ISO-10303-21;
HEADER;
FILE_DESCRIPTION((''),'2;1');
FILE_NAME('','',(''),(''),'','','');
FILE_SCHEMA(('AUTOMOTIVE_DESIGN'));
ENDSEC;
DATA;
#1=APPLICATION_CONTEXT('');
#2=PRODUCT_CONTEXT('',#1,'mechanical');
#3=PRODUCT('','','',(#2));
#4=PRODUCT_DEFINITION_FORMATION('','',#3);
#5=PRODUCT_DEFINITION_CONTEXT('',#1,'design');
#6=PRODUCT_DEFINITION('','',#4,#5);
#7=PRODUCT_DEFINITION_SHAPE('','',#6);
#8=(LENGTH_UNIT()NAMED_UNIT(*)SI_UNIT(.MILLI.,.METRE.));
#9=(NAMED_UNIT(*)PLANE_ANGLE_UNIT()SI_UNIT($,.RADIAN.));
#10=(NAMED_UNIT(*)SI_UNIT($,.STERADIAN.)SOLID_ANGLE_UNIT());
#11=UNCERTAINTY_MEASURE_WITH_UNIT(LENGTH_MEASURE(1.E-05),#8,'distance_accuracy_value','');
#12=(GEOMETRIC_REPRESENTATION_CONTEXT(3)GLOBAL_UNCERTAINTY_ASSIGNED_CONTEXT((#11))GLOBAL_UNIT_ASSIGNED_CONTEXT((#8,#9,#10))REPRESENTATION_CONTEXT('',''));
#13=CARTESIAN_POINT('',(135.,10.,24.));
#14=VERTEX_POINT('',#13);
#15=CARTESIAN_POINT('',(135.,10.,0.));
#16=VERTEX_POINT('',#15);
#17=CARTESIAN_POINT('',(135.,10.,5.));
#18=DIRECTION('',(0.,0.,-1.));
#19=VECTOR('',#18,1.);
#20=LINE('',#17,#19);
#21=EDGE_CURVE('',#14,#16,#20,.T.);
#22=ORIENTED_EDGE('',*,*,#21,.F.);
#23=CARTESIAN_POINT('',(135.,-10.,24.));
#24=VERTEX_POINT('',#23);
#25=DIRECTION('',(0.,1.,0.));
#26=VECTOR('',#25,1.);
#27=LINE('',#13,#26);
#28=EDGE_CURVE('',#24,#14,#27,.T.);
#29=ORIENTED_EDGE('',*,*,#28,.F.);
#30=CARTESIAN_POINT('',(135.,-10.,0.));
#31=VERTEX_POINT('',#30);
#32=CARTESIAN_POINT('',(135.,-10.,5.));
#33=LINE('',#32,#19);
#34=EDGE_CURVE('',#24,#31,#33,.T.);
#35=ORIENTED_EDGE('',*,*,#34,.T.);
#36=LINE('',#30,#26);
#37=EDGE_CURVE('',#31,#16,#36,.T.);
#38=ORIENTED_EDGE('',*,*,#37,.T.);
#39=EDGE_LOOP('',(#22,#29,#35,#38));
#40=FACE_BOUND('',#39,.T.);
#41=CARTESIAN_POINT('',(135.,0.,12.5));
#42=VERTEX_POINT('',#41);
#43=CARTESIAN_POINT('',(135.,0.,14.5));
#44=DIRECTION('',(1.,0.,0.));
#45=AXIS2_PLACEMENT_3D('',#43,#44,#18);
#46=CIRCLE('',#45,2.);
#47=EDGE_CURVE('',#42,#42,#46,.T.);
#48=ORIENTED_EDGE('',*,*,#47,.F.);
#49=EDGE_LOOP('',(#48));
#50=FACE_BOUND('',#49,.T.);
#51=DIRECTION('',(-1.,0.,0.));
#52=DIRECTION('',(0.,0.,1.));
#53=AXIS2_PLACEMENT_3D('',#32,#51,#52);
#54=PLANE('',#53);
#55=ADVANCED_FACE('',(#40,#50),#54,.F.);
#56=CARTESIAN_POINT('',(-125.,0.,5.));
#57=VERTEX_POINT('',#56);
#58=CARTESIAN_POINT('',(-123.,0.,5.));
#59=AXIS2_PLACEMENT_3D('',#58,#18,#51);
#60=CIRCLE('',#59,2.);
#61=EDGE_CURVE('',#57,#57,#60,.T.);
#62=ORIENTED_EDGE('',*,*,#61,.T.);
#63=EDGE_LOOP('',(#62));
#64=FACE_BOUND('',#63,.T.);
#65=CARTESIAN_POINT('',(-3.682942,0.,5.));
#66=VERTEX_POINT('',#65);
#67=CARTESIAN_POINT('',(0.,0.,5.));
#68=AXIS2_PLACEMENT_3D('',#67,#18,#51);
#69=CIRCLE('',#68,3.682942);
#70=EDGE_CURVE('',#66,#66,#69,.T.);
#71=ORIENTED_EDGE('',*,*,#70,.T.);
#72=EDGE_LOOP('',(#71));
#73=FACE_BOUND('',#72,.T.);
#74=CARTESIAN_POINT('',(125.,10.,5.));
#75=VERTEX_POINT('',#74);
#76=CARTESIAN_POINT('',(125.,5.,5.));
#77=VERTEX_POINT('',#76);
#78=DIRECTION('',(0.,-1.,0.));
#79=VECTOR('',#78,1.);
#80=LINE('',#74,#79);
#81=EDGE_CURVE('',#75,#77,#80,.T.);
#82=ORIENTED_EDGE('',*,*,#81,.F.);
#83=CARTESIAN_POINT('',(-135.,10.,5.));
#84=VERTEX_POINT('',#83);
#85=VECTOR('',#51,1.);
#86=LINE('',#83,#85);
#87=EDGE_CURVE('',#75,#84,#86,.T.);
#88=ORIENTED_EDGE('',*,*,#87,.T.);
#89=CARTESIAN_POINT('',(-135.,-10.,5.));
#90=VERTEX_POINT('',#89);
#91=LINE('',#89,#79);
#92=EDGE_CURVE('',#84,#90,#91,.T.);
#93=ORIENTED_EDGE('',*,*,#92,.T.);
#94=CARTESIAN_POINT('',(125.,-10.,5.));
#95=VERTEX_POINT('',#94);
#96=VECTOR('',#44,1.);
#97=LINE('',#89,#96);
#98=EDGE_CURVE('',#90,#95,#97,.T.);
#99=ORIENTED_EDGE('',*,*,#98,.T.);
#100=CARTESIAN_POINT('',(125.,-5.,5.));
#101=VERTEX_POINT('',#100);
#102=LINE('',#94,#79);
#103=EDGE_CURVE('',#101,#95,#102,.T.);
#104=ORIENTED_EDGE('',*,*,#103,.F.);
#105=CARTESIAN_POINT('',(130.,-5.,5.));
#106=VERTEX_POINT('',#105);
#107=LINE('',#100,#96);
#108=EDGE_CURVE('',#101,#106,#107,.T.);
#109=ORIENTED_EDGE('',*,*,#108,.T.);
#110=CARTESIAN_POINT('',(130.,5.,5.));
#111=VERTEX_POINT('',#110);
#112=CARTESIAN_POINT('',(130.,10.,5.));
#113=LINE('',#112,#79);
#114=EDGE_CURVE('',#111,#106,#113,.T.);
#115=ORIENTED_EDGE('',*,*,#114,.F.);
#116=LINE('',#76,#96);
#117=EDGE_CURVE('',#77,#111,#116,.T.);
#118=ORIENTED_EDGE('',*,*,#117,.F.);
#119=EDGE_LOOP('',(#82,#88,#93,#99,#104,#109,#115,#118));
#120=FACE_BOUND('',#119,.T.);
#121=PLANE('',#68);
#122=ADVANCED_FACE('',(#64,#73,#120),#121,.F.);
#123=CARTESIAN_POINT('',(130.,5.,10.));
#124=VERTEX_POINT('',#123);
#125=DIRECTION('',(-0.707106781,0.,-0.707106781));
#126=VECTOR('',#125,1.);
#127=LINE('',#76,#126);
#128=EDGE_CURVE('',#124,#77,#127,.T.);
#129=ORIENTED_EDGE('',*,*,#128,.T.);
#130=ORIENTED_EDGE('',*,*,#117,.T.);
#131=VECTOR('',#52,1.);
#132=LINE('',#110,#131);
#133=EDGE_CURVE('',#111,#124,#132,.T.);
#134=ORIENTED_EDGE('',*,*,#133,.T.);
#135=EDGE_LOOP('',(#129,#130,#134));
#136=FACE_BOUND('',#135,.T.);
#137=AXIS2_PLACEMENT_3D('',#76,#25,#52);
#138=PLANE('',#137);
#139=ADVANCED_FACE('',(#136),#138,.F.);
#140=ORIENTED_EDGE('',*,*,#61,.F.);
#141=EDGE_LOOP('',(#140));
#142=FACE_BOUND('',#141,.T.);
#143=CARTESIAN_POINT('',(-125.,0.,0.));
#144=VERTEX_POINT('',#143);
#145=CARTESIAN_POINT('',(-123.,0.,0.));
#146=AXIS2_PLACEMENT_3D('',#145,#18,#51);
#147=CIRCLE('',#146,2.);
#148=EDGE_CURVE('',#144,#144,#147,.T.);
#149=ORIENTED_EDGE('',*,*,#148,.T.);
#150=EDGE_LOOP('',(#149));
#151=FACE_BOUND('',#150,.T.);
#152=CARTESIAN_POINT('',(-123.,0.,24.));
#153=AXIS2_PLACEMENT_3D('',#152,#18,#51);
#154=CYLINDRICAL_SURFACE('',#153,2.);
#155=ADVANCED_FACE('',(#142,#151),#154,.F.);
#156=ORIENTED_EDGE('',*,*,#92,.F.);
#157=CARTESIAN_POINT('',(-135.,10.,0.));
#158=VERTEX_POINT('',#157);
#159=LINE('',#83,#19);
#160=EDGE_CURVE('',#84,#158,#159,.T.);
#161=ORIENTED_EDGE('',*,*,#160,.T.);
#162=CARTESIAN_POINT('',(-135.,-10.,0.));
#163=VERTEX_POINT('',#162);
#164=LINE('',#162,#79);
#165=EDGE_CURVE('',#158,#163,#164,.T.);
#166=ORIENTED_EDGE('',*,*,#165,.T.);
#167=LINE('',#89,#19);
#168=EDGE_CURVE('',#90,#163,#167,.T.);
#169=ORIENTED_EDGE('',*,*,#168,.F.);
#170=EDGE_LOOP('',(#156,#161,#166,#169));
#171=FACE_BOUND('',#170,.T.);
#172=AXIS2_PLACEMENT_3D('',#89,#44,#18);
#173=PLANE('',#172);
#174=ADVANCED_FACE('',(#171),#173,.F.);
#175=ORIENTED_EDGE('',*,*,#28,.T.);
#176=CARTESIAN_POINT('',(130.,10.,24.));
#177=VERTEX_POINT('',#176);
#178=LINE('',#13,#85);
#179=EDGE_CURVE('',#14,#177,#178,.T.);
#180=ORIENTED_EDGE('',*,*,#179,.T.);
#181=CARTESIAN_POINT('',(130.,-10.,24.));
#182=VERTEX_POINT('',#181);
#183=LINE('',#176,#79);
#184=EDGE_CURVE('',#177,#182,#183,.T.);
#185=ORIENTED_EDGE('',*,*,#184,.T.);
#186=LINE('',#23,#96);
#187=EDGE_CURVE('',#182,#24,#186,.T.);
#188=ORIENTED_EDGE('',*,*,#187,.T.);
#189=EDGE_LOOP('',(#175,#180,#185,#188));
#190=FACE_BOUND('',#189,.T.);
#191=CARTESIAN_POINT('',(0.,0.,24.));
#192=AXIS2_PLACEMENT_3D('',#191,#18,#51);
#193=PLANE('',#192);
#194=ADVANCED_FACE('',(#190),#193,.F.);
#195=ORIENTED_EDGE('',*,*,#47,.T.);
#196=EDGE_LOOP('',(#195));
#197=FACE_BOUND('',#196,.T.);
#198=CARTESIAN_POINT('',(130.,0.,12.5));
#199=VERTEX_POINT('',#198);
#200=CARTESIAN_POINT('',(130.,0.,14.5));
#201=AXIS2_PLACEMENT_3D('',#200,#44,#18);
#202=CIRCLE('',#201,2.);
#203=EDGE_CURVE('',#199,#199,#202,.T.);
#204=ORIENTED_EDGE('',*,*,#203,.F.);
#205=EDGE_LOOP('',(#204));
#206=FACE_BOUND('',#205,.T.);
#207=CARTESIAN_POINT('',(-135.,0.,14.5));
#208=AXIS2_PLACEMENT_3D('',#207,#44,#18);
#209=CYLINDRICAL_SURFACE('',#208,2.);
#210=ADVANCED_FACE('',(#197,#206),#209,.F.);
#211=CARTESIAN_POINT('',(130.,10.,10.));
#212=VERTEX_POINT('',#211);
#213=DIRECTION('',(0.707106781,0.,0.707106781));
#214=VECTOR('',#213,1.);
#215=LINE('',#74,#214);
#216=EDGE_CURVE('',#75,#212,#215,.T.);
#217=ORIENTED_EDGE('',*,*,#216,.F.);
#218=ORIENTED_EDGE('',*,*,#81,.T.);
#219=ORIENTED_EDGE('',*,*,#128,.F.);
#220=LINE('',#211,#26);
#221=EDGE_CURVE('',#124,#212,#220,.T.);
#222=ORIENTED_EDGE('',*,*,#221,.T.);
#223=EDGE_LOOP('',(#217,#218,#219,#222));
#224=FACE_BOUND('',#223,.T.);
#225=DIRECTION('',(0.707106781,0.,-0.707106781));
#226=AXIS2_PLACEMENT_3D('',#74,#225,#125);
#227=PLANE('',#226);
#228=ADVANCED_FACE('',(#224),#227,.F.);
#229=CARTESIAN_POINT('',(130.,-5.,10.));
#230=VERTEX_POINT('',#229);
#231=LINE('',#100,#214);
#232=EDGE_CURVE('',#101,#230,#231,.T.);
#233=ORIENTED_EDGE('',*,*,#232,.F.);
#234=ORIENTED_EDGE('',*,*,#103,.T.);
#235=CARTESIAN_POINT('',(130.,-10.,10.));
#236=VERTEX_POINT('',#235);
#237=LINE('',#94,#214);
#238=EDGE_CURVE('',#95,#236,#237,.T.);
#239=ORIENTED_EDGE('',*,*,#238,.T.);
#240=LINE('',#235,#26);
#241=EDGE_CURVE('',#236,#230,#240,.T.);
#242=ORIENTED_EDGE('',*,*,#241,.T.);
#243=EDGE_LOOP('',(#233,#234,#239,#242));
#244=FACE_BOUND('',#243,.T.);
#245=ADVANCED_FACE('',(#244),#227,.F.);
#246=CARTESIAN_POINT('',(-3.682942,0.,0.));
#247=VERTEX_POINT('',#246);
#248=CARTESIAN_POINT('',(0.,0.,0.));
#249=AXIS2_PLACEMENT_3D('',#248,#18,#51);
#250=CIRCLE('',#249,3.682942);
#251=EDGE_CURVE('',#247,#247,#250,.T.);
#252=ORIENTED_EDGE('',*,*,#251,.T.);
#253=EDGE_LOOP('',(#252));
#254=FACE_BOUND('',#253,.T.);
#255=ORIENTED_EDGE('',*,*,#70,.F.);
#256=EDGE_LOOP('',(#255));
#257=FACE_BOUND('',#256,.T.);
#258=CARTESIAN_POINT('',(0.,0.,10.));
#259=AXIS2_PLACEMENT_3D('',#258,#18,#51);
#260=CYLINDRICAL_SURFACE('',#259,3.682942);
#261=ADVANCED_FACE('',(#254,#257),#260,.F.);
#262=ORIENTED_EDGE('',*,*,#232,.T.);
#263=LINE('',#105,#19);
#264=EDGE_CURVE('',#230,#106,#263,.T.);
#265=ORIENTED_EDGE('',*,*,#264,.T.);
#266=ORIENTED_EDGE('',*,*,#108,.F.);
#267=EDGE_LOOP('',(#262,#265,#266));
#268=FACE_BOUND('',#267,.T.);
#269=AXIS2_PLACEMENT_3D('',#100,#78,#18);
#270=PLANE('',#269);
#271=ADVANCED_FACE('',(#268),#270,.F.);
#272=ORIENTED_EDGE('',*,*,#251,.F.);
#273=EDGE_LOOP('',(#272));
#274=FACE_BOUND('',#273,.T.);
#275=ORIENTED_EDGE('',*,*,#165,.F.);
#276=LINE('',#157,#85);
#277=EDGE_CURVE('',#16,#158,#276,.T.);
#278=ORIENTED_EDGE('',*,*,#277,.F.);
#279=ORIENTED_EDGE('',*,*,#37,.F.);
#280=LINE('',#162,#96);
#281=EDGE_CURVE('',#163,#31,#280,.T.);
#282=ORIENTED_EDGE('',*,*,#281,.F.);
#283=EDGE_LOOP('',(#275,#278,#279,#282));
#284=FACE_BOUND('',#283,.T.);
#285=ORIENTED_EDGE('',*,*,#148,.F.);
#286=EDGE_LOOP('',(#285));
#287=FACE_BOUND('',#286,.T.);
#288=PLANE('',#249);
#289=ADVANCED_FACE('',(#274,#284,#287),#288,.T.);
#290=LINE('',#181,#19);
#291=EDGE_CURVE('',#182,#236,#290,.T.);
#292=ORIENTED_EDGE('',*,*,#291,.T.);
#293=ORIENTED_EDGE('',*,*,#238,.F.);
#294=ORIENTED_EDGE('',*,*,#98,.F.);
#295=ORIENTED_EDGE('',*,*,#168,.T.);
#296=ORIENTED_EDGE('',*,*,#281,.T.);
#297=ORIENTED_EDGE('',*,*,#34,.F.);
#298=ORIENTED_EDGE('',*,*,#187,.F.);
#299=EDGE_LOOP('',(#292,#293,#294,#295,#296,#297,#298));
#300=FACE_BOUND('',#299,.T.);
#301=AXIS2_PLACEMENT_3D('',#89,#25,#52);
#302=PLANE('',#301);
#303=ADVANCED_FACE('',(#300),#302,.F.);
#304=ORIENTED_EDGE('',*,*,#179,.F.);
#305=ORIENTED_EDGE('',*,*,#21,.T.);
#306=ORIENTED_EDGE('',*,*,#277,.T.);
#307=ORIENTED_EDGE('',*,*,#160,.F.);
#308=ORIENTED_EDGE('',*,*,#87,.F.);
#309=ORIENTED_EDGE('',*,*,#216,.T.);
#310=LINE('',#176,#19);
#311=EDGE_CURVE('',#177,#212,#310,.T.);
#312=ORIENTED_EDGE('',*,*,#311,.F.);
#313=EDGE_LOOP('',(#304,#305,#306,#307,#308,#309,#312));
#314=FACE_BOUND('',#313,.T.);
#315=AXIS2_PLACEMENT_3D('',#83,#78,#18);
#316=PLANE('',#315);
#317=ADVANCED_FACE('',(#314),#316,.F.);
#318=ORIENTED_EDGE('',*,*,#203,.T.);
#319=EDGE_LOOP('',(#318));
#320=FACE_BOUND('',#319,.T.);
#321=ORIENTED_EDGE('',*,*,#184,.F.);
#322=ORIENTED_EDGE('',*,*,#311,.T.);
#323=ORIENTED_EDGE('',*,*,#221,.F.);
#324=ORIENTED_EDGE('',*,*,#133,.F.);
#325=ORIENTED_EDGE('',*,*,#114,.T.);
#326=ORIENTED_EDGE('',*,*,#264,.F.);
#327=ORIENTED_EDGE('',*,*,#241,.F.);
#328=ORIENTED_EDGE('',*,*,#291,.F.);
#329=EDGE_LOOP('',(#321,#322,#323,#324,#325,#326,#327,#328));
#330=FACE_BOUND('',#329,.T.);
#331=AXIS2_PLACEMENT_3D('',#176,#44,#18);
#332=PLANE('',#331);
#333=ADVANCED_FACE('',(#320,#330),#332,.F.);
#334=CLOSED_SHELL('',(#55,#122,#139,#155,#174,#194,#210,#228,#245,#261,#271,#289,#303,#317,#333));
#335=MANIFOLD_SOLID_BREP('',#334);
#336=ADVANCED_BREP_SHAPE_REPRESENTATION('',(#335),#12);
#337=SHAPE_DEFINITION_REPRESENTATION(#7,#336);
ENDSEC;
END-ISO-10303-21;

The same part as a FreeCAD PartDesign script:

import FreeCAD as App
import Part
import Sketcher
Q = App.Units.Quantity


def add_polygon(sketch, points):
    """Adds a closed chain of lines whose ends are joined by coincident constraints."""
    first, n = sketch.GeometryCount, len(points)
    for a, b in zip(points, points[1:] + points[:1]):
        sketch.addGeometry(Part.LineSegment(App.Vector(*a, 0), App.Vector(*b, 0)), False)
    for i in range(n):
        sketch.addConstraint(Sketcher.Constraint("Coincident", first + i, 2, first + (i + 1) % n, 1))

doc = App.newDocument("Part")
params = doc.addObject("Spreadsheet::Sheet", "Params")
for row, (alias, value) in enumerate([
    ("sketch1_width", "270 mm"),
    ("sketch1_height", "20 mm"),
    ("pad1_length", "5 mm"),
    ("sketch2_width", "5 mm"),
    ("sketch2_height", "20 mm"),
    ("pad2_length", "19 mm"),
    ("sketch3_diameter", "4 mm"),
    ("sketch4_width", "5 mm"),
    ("pad3_length", "5 mm"),
    ("sketch5_width", "5 mm"),
    ("sketch6_diameter", "4 mm"),
    ("pocket4_length", "10 mm"),
], start=1):
    params.set(f"A{row}", alias)
    params.set(f"B{row}", "=" + value)
    params.setAlias(f"B{row}", alias)

body = doc.addObject("PartDesign::Body", "Body")

# Sketch on XY plane
sketch1 = doc.addObject("Sketcher::SketchObject", "Sketch")
body.addObject(sketch1)
sketch1.AttachmentSupport = (doc.XY_Plane, [""])
sketch1.MapMode = "FlatFace"
add_polygon(sketch1, [(-135, 10), (-135, -10), (135, -10), (135, 10)])  # lines 0-3
sketch1.addConstraint([
    Sketcher.Constraint("Vertical", 0),
    Sketcher.Constraint("Horizontal", 1),
    Sketcher.Constraint("Vertical", 2),
    Sketcher.Constraint("Horizontal", 3),
    Sketcher.Constraint("Symmetric", 0, 2, 2, 2, -1, 1),
    Sketcher.Constraint("DistanceX", 1, 1, 1, 2, Q("270 mm")),
    Sketcher.Constraint("DistanceY", 0, 2, 0, 1, Q("20 mm")),
])
sketch1.setExpression("Constraints[9]", "Params.sketch1_width")
sketch1.setExpression("Constraints[10]", "Params.sketch1_height")
pad1 = doc.addObject("PartDesign::Pad", "Pad")
body.addObject(pad1)
pad1.Profile = sketch1
pad1.setExpression("Length", "Params.pad1_length")

# Sketch on XY plane
sketch2 = doc.addObject("Sketcher::SketchObject", "Sketch001")
body.addObject(sketch2)
sketch2.AttachmentSupport = (doc.XY_Plane, [""])
sketch2.MapMode = "FlatFace"
sketch2.AttachmentOffset = App.Placement(App.Vector(0, 0, 5), App.Rotation())
add_polygon(sketch2, [(130, 10), (130, -10), (135, -10), (135, 10)])  # lines 0-3
sketch2.addConstraint([
    Sketcher.Constraint("Vertical", 0),
    Sketcher.Constraint("Horizontal", 1),
    Sketcher.Constraint("Vertical", 2),
    Sketcher.Constraint("Horizontal", 3),
    Sketcher.Constraint("DistanceX", 1, 1, 1, 2, Q("5 mm")),
    Sketcher.Constraint("DistanceY", 0, 2, 0, 1, Q("20 mm")),
    Sketcher.Constraint("DistanceX", -1, 1, 0, 2, Q("130 mm")),
    Sketcher.Constraint("DistanceY", 0, 2, -1, 1, Q("10 mm")),
])
sketch2.setExpression("Constraints[8]", "Params.sketch2_width")
sketch2.setExpression("Constraints[9]", "Params.sketch2_height")
pad2 = doc.addObject("PartDesign::Pad", "Pad001")
body.addObject(pad2)
pad2.Profile = sketch2
pad2.setExpression("Length", "Params.pad2_length")

# Sketch on YZ plane
sketch3 = doc.addObject("Sketcher::SketchObject", "Sketch002")
body.addObject(sketch3)
sketch3.AttachmentSupport = (doc.YZ_Plane, [""])
sketch3.MapMode = "FlatFace"
sketch3.AttachmentOffset = App.Placement(App.Vector(0, 0, 135), App.Rotation())
sketch3.addGeometry(Part.Circle(App.Vector(0, 14.5, 0), App.Vector(0, 0, 1), 2), False)
sketch3.addConstraint([
    Sketcher.Constraint("PointOnObject", 0, 3, -2),
    Sketcher.Constraint("Diameter", 0, Q("4 mm")),
    Sketcher.Constraint("DistanceY", -1, 1, 0, 3, Q("14.5 mm")),
])
sketch3.setExpression("Constraints[1]", "Params.sketch3_diameter")
pocket1 = doc.addObject("PartDesign::Pocket", "Pocket")
body.addObject(pocket1)
pocket1.Profile = sketch3
pocket1.Type = "ThroughAll"

# Sketch on YZ plane
sketch4 = doc.addObject("Sketcher::SketchObject", "Sketch003")
body.addObject(sketch4)
sketch4.AttachmentSupport = (doc.YZ_Plane, [""])
sketch4.MapMode = "FlatFace"
sketch4.AttachmentOffset = App.Placement(App.Vector(0, 0, 130), App.Rotation())
add_polygon(sketch4, [(-5, 5), (-10, 5), (-10, 10), (-5, 10)])  # lines 0-3
add_polygon(sketch4, [(10, 5), (5, 5), (5, 10), (10, 10)])  # lines 4-7
sketch4.addConstraint([
    Sketcher.Constraint("Horizontal", 0),
    Sketcher.Constraint("Vertical", 1),
    Sketcher.Constraint("Horizontal", 2),
    Sketcher.Constraint("Vertical", 3),
    Sketcher.Constraint("Horizontal", 4),
    Sketcher.Constraint("Vertical", 5),
    Sketcher.Constraint("Horizontal", 6),
    Sketcher.Constraint("Vertical", 7),
    Sketcher.Constraint("Symmetric", 3, 2, 4, 2, -2),
    Sketcher.Constraint("Symmetric", 1, 2, 6, 2, -2),
    Sketcher.Constraint("Equal", 6, 1),
    Sketcher.Constraint("DistanceX", 0, 2, 0, 1, Q("5 mm")),
    Sketcher.Constraint("DistanceX", 0, 2, -1, 1, Q("10 mm")),
    Sketcher.Constraint("DistanceY", -1, 1, 0, 2, Q("5 mm")),
])
sketch4.setExpression("Constraints[19]", "Params.sketch4_width")
pad3 = doc.addObject("PartDesign::Pad", "Pad002")
body.addObject(pad3)
pad3.Profile = sketch4
pad3.setExpression("Length", "Params.pad3_length")
pad3.Reversed = True

# Sketch on XZ plane
sketch5 = doc.addObject("Sketcher::SketchObject", "Sketch004")
body.addObject(sketch5)
sketch5.AttachmentSupport = (doc.XZ_Plane, [""])
sketch5.MapMode = "FlatFace"
sketch5.AttachmentOffset = App.Placement(App.Vector(0, 0, 10), App.Rotation())
add_polygon(sketch5, [(125, 5), (130, 10), (125, 10)])  # lines 0-2
sketch5.addConstraint([
    Sketcher.Constraint("Horizontal", 1),
    Sketcher.Constraint("Vertical", 2),
    Sketcher.Constraint("Equal", 1, 2),
    Sketcher.Constraint("DistanceX", 1, 2, 1, 1, Q("5 mm")),
    Sketcher.Constraint("DistanceX", -1, 1, 0, 2, Q("130 mm")),
    Sketcher.Constraint("DistanceY", -1, 1, 0, 2, Q("10 mm")),
])
sketch5.setExpression("Constraints[6]", "Params.sketch5_width")
pocket2 = doc.addObject("PartDesign::Pocket", "Pocket001")
body.addObject(pocket2)
pocket2.Profile = sketch5
pocket2.Type = "ThroughAll"

# Sketch on XY plane
sketch6 = doc.addObject("Sketcher::SketchObject", "Sketch005")
body.addObject(sketch6)
sketch6.AttachmentSupport = (doc.XY_Plane, [""])
sketch6.MapMode = "FlatFace"
sketch6.addGeometry(Part.Circle(App.Vector(-123, 0, 0), App.Vector(0, 0, 1), 2), False)
sketch6.addConstraint([
    Sketcher.Constraint("PointOnObject", 0, 3, -1),
    Sketcher.Constraint("Diameter", 0, Q("4 mm")),
    Sketcher.Constraint("DistanceX", 0, 3, -1, 1, Q("123 mm")),
])
sketch6.setExpression("Constraints[1]", "Params.sketch6_diameter")
pocket3 = doc.addObject("PartDesign::Pocket", "Pocket002")
body.addObject(pocket3)
pocket3.Profile = sketch6
pocket3.Type = "ThroughAll"
pocket3.Reversed = True

# Sketch on XY plane
sketch7 = doc.addObject("Sketcher::SketchObject", "Sketch006")
body.addObject(sketch7)
sketch7.AttachmentSupport = (doc.XY_Plane, [""])
sketch7.MapMode = "FlatFace"
sketch7.addGeometry(Part.Circle(App.Vector(0, 0, 0), App.Vector(0, 0, 1), 3.7), False)
sketch7.addConstraint([
    Sketcher.Constraint("Coincident", 0, 3, -1, 1),
    Sketcher.Constraint("Diameter", 0, Q("7.365883 mm")),
])
pocket4 = doc.addObject("PartDesign::Pocket", "Pocket003")
body.addObject(pocket4)
pocket4.Profile = sketch7
pocket4.setExpression("Length", "Params.pocket4_length")
pocket4.Reversed = True

doc.recompute()
